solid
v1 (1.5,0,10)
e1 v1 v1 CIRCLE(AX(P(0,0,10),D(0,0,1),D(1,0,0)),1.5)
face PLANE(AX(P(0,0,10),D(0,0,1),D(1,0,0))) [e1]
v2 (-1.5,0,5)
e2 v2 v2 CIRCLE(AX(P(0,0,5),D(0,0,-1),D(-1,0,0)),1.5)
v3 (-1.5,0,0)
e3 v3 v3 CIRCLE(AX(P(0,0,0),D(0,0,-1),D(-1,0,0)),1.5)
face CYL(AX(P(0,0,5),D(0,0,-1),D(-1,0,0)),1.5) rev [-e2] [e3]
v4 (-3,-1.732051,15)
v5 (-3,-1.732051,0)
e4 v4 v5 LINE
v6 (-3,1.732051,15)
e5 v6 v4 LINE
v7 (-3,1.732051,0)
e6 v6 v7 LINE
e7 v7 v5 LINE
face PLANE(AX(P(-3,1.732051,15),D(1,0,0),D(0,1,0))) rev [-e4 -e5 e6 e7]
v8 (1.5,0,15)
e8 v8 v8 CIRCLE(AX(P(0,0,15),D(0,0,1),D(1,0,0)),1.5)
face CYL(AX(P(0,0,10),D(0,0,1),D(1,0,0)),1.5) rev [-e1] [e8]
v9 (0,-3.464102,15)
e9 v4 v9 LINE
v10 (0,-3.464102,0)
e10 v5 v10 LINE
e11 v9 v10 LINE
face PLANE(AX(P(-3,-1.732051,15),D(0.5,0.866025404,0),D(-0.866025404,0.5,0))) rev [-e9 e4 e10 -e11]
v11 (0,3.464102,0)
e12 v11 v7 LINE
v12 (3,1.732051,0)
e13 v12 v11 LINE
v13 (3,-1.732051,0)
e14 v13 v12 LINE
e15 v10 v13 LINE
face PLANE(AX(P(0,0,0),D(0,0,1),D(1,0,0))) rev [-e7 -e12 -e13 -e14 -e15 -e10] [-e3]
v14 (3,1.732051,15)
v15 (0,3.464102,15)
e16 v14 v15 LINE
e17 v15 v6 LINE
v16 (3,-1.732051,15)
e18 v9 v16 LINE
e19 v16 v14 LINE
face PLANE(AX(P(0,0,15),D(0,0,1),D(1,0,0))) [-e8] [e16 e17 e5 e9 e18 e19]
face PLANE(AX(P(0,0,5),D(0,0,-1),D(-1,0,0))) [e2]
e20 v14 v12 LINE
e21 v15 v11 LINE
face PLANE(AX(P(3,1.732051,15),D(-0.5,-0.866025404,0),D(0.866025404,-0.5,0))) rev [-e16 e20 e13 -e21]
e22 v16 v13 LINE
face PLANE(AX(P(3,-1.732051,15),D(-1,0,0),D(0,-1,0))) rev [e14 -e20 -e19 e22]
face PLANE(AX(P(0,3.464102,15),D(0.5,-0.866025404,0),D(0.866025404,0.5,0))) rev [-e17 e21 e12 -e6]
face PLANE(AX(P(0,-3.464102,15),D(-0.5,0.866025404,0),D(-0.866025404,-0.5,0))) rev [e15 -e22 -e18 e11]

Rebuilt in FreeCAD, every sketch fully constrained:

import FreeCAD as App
import Part
import Sketcher

V = App.Vector
Q = App.Units.Quantity

doc = App.newDocument("Part")
params = doc.addObject("Spreadsheet::Sheet", "Params")
for row, (alias, value) in enumerate([
    ("pad1_length", "15 mm"),
    ("sketch2_diameter", "3 mm"),
    ("pocket1_length", "5 mm"),
    ("sketch3_diameter", "3 mm"),
    ("pocket2_length", "5 mm"),
], start=1):
    params.set(f"A{row}", alias)
    params.set(f"B{row}", "=" + value)
    params.setAlias(f"B{row}", alias)

body = doc.addObject("PartDesign::Body", "Body")

sketch1 = doc.addObject("Sketcher::SketchObject", "Sketch")
body.addObject(sketch1)
sketch1.AttachmentSupport = (doc.XY_Plane, [""])
sketch1.MapMode = "FlatFace"
sketch1.addGeometry([
    Part.LineSegment(V(0, -3.464102, 0), V(3, -1.732051, 0)),
    Part.LineSegment(V(3, -1.732051, 0), V(3, 1.732051, 0)),
    Part.LineSegment(V(3, 1.732051, 0), V(0, 3.464102, 0)),
    Part.LineSegment(V(0, 3.464102, 0), V(-3, 1.732051, 0)),
    Part.LineSegment(V(-3, 1.732051, 0), V(-3, -1.732051, 0)),
    Part.LineSegment(V(-3, -1.732051, 0), V(0, -3.464102, 0)),
], False)
sketch1.addConstraint([
    Sketcher.Constraint("Coincident", 0, 2, 1, 1),
    Sketcher.Constraint("Coincident", 1, 2, 2, 1),
    Sketcher.Constraint("Coincident", 2, 2, 3, 1),
    Sketcher.Constraint("Coincident", 3, 2, 4, 1),
    Sketcher.Constraint("Coincident", 4, 2, 5, 1),
    Sketcher.Constraint("Coincident", 5, 2, 0, 1),
    Sketcher.Constraint("Vertical", 1),
    Sketcher.Constraint("Vertical", 4),
    Sketcher.Constraint("Symmetric", 0, 2, 3, 2, -1, 1),
    Sketcher.Constraint("Symmetric", 2, 2, 5, 2, -1, 1),
    Sketcher.Constraint("PointOnObject", 2, 2, -2),
    Sketcher.Constraint("Parallel", 2, 5),
    Sketcher.Constraint("Horizontal", 1, 2, 3, 2),
    Sketcher.Constraint("Angle", 0, Q("30 deg")),
    Sketcher.Constraint("DistanceX", -1, 1, 0, 2, Q("3 mm")),
    Sketcher.Constraint("DistanceY", 1, 1, 1, 2, Q("3.464102 mm")),
])
pad1 = doc.addObject("PartDesign::Pad", "Pad")
body.addObject(pad1)
pad1.Profile = sketch1
pad1.setExpression("Length", "Params.pad1_length")

sketch2 = doc.addObject("Sketcher::SketchObject", "Sketch001")
body.addObject(sketch2)
sketch2.AttachmentSupport = (doc.XY_Plane, [""])
sketch2.MapMode = "FlatFace"
sketch2.addGeometry(Part.Circle(V(0, 0, 0), V(0, 0, 1), 1.5), False)
sketch2.addConstraint([
    Sketcher.Constraint("Coincident", 0, 3, -1, 1),
    Sketcher.Constraint("Diameter", 0, Q("3 mm")),
])
sketch2.setExpression("Constraints[1]", "Params.sketch2_diameter")
pocket1 = doc.addObject("PartDesign::Pocket", "Pocket")
body.addObject(pocket1)
pocket1.Profile = sketch2
pocket1.setExpression("Length", "Params.pocket1_length")
pocket1.Reversed = True

sketch3 = doc.addObject("Sketcher::SketchObject", "Sketch002")
body.addObject(sketch3)
sketch3.AttachmentSupport = (doc.XY_Plane, [""])
sketch3.MapMode = "FlatFace"
sketch3.AttachmentOffset = App.Placement(V(0, 0, 15), App.Rotation())
sketch3.addGeometry(Part.Circle(V(0, 0, 0), V(0, 0, 1), 1.5), False)
sketch3.addConstraint([
    Sketcher.Constraint("Coincident", 0, 3, -1, 1),
    Sketcher.Constraint("Diameter", 0, Q("3 mm")),
])
sketch3.setExpression("Constraints[1]", "Params.sketch3_diameter")
pocket2 = doc.addObject("PartDesign::Pocket", "Pocket001")
body.addObject(pocket2)
pocket2.Profile = sketch3
pocket2.setExpression("Length", "Params.pocket2_length")

doc.recompute()
